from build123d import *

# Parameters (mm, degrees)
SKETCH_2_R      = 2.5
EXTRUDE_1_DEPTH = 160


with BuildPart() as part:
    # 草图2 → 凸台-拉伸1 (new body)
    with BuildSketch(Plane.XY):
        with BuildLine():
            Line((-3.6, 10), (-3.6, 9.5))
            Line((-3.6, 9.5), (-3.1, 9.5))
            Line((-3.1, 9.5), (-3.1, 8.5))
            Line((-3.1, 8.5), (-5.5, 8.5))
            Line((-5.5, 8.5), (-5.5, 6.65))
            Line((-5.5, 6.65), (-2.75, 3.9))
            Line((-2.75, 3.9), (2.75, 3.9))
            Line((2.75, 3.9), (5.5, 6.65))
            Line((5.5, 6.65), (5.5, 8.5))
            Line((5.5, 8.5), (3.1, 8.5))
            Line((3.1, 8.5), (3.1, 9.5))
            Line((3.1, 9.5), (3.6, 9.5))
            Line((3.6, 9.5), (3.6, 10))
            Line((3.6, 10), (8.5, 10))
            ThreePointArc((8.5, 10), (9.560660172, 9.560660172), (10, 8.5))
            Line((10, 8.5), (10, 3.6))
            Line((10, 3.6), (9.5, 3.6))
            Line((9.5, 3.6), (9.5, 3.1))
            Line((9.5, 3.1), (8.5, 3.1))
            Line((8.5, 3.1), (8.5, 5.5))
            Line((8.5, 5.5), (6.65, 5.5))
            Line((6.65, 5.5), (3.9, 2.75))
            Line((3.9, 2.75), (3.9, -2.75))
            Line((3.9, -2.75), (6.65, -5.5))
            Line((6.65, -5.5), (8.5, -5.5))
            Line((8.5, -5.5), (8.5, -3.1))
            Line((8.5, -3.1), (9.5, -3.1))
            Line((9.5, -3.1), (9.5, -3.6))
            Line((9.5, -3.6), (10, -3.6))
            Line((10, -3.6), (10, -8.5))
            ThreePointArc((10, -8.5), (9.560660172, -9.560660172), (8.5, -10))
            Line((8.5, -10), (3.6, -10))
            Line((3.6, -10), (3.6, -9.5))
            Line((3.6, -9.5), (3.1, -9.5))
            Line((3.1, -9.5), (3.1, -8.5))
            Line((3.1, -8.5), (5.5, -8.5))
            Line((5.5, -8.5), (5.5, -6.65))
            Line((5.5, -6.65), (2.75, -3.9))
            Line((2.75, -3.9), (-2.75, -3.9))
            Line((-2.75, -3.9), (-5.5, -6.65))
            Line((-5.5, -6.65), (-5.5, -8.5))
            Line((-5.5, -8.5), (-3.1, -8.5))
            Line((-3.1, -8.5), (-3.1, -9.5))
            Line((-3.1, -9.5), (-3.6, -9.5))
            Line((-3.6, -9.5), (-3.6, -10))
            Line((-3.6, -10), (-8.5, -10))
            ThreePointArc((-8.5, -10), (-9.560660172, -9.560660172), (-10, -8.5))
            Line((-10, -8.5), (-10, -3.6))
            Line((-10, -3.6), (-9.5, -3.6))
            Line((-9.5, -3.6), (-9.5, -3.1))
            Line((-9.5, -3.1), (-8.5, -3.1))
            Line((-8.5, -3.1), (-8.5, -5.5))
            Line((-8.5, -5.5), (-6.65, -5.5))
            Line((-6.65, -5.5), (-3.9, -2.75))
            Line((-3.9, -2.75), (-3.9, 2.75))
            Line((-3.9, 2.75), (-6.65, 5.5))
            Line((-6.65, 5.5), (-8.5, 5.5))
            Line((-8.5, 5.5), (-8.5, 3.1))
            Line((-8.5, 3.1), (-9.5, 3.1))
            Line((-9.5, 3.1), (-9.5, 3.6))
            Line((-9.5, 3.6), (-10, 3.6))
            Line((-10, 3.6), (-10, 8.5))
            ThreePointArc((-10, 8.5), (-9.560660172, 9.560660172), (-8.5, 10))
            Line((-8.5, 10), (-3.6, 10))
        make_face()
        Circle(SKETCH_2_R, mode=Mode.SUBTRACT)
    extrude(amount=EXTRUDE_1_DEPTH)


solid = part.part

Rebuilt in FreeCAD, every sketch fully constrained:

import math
import FreeCAD as App
import Part
import Sketcher

V = App.Vector

doc = App.newDocument("Part")
body = doc.addObject("PartDesign::Body", "Body")

sketch1 = body.newObject("Sketcher::SketchObject", "Sketch")
sketch1.AttachmentSupport = (doc.getObject("XY_Plane"), [""])
sketch1.MapMode = "FlatFace"
sketch1.addGeometry([
    Part.LineSegment(V(-3.6, 9.5, 0), V(-3.6, 10, 0)),
    Part.LineSegment(V(-3.6, 10, 0), V(-8.5, 10, 0)),
    Part.ArcOfCircle(Part.Circle(V(-8.5, 8.5, 0), V(0, 0, 1), 1.5), math.radians(90), math.radians(180)),
    Part.LineSegment(V(-10, 8.5, 0), V(-10, 3.6, 0)),
    Part.LineSegment(V(-10, 3.6, 0), V(-9.5, 3.6, 0)),
    Part.LineSegment(V(-9.5, 3.6, 0), V(-9.5, 3.1, 0)),
    Part.LineSegment(V(-9.5, 3.1, 0), V(-8.5, 3.1, 0)),
    Part.LineSegment(V(-8.5, 3.1, 0), V(-8.5, 5.5, 0)),
    Part.LineSegment(V(-8.5, 5.5, 0), V(-6.7, 5.5, 0)),
    Part.LineSegment(V(-6.7, 5.5, 0), V(-3.9, 2.8, 0)),
    Part.LineSegment(V(-3.9, 2.8, 0), V(-3.9, -2.8, 0)),
    Part.LineSegment(V(-3.9, -2.8, 0), V(-6.7, -5.5, 0)),
    Part.LineSegment(V(-6.7, -5.5, 0), V(-8.5, -5.5, 0)),
    Part.LineSegment(V(-8.5, -5.5, 0), V(-8.5, -3.1, 0)),
    Part.LineSegment(V(-8.5, -3.1, 0), V(-9.5, -3.1, 0)),
    Part.LineSegment(V(-9.5, -3.1, 0), V(-9.5, -3.6, 0)),
    Part.LineSegment(V(-9.5, -3.6, 0), V(-10, -3.6, 0)),
    Part.LineSegment(V(-10, -3.6, 0), V(-10, -8.5, 0)),
    Part.ArcOfCircle(Part.Circle(V(-8.5, -8.5, 0), V(0, 0, 1), 1.5), math.radians(180), math.radians(270)),
    Part.LineSegment(V(-8.5, -10, 0), V(-3.6, -10, 0)),
    Part.LineSegment(V(-3.6, -10, 0), V(-3.6, -9.5, 0)),
    Part.LineSegment(V(-3.6, -9.5, 0), V(-3.1, -9.5, 0)),
    Part.LineSegment(V(-3.1, -9.5, 0), V(-3.1, -8.5, 0)),
    Part.LineSegment(V(-3.1, -8.5, 0), V(-5.5, -8.5, 0)),
    Part.LineSegment(V(-5.5, -8.5, 0), V(-5.5, -6.7, 0)),
    Part.LineSegment(V(-5.5, -6.7, 0), V(-2.8, -3.9, 0)),
    Part.LineSegment(V(-2.8, -3.9, 0), V(2.8, -3.9, 0)),
    Part.LineSegment(V(2.8, -3.9, 0), V(5.5, -6.7, 0)),
    Part.LineSegment(V(5.5, -6.7, 0), V(5.5, -8.5, 0)),
    Part.LineSegment(V(5.5, -8.5, 0), V(3.1, -8.5, 0)),
    Part.LineSegment(V(3.1, -8.5, 0), V(3.1, -9.5, 0)),
    Part.LineSegment(V(3.1, -9.5, 0), V(3.6, -9.5, 0)),
    Part.LineSegment(V(3.6, -9.5, 0), V(3.6, -10, 0)),
    Part.LineSegment(V(3.6, -10, 0), V(8.5, -10, 0)),
    Part.ArcOfCircle(Part.Circle(V(8.5, -8.5, 0), V(0, 0, 1), 1.5), math.radians(-90), math.radians(0)),
    Part.LineSegment(V(10, -8.5, 0), V(10, -3.6, 0)),
    Part.LineSegment(V(10, -3.6, 0), V(9.5, -3.6, 0)),
    Part.LineSegment(V(9.5, -3.6, 0), V(9.5, -3.1, 0)),
    Part.LineSegment(V(9.5, -3.1, 0), V(8.5, -3.1, 0)),
    Part.LineSegment(V(8.5, -3.1, 0), V(8.5, -5.5, 0)),
    Part.LineSegment(V(8.5, -5.5, 0), V(6.7, -5.5, 0)),
    Part.LineSegment(V(6.7, -5.5, 0), V(3.9, -2.8, 0)),
    Part.LineSegment(V(3.9, -2.8, 0), V(3.9, 2.8, 0)),
    Part.LineSegment(V(3.9, 2.8, 0), V(6.7, 5.5, 0)),
    Part.LineSegment(V(6.7, 5.5, 0), V(8.5, 5.5, 0)),
    Part.LineSegment(V(8.5, 5.5, 0), V(8.5, 3.1, 0)),
    Part.LineSegment(V(8.5, 3.1, 0), V(9.5, 3.1, 0)),
    Part.LineSegment(V(9.5, 3.1, 0), V(9.5, 3.6, 0)),
    Part.LineSegment(V(9.5, 3.6, 0), V(10, 3.6, 0)),
    Part.LineSegment(V(10, 3.6, 0), V(10, 8.5, 0)),
    Part.ArcOfCircle(Part.Circle(V(8.5, 8.5, 0), V(0, 0, 1), 1.5), math.radians(0), math.radians(90)),
    Part.LineSegment(V(8.5, 10, 0), V(3.6, 10, 0)),
    Part.LineSegment(V(3.6, 10, 0), V(3.6, 9.5, 0)),
    Part.LineSegment(V(3.6, 9.5, 0), V(3.1, 9.5, 0)),
    Part.LineSegment(V(3.1, 9.5, 0), V(3.1, 8.5, 0)),
    Part.LineSegment(V(3.1, 8.5, 0), V(5.5, 8.5, 0)),
    Part.LineSegment(V(5.5, 8.5, 0), V(5.5, 6.7, 0)),
    Part.LineSegment(V(5.5, 6.7, 0), V(2.8, 3.9, 0)),
    Part.LineSegment(V(2.8, 3.9, 0), V(-2.8, 3.9, 0)),
    Part.LineSegment(V(-2.8, 3.9, 0), V(-5.5, 6.7, 0)),
    Part.LineSegment(V(-5.5, 6.7, 0), V(-5.5, 8.5, 0)),
    Part.LineSegment(V(-5.5, 8.5, 0), V(-3.1, 8.5, 0)),
    Part.LineSegment(V(-3.1, 8.5, 0), V(-3.1, 9.5, 0)),
    Part.LineSegment(V(-3.1, 9.5, 0), V(-3.6, 9.5, 0)),
    Part.Circle(V(0, 0, 0), V(0, 0, 1), 2.5),
], False)
sketch1.addConstraint([
    Sketcher.Constraint("Coincident", 0, 2, 1, 1),
    Sketcher.Constraint("Tangent", 1, 2, 2, 1),
    Sketcher.Constraint("Tangent", 2, 2, 3, 1),
    Sketcher.Constraint("Coincident", 3, 2, 4, 1),
    Sketcher.Constraint("Coincident", 4, 2, 5, 1),
    Sketcher.Constraint("Coincident", 5, 2, 6, 1),
    Sketcher.Constraint("Coincident", 6, 2, 7, 1),
    Sketcher.Constraint("Coincident", 7, 2, 8, 1),
    Sketcher.Constraint("Coincident", 8, 2, 9, 1),
    Sketcher.Constraint("Coincident", 9, 2, 10, 1),
    Sketcher.Constraint("Coincident", 10, 2, 11, 1),
    Sketcher.Constraint("Coincident", 11, 2, 12, 1),
    Sketcher.Constraint("Coincident", 12, 2, 13, 1),
    Sketcher.Constraint("Coincident", 13, 2, 14, 1),
    Sketcher.Constraint("Coincident", 14, 2, 15, 1),
    Sketcher.Constraint("Coincident", 15, 2, 16, 1),
    Sketcher.Constraint("Coincident", 16, 2, 17, 1),
    Sketcher.Constraint("Tangent", 17, 2, 18, 1),
    Sketcher.Constraint("Tangent", 18, 2, 19, 1),
    Sketcher.Constraint("Coincident", 19, 2, 20, 1),
    Sketcher.Constraint("Coincident", 20, 2, 21, 1),
    Sketcher.Constraint("Coincident", 21, 2, 22, 1),
    Sketcher.Constraint("Coincident", 22, 2, 23, 1),
    Sketcher.Constraint("Coincident", 23, 2, 24, 1),
    Sketcher.Constraint("Coincident", 24, 2, 25, 1),
    Sketcher.Constraint("Coincident", 25, 2, 26, 1),
    Sketcher.Constraint("Coincident", 26, 2, 27, 1),
    Sketcher.Constraint("Coincident", 27, 2, 28, 1),
    Sketcher.Constraint("Coincident", 28, 2, 29, 1),
    Sketcher.Constraint("Coincident", 29, 2, 30, 1),
    Sketcher.Constraint("Coincident", 30, 2, 31, 1),
    Sketcher.Constraint("Coincident", 31, 2, 32, 1),
    Sketcher.Constraint("Coincident", 32, 2, 33, 1),
    Sketcher.Constraint("Tangent", 33, 2, 34, 1),
    Sketcher.Constraint("Tangent", 34, 2, 35, 1),
    Sketcher.Constraint("Coincident", 35, 2, 36, 1),
    Sketcher.Constraint("Coincident", 36, 2, 37, 1),
    Sketcher.Constraint("Coincident", 37, 2, 38, 1),
    Sketcher.Constraint("Coincident", 38, 2, 39, 1),
    Sketcher.Constraint("Coincident", 39, 2, 40, 1),
    Sketcher.Constraint("Coincident", 40, 2, 41, 1),
    Sketcher.Constraint("Coincident", 41, 2, 42, 1),
    Sketcher.Constraint("Coincident", 42, 2, 43, 1),
    Sketcher.Constraint("Coincident", 43, 2, 44, 1),
    Sketcher.Constraint("Coincident", 44, 2, 45, 1),
    Sketcher.Constraint("Coincident", 45, 2, 46, 1),
    Sketcher.Constraint("Coincident", 46, 2, 47, 1),
    Sketcher.Constraint("Coincident", 47, 2, 48, 1),
    Sketcher.Constraint("Coincident", 48, 2, 49, 1),
    Sketcher.Constraint("Tangent", 49, 2, 50, 1),
    Sketcher.Constraint("Tangent", 50, 2, 51, 1),
    Sketcher.Constraint("Coincident", 51, 2, 52, 1),
    Sketcher.Constraint("Coincident", 52, 2, 53, 1),
    Sketcher.Constraint("Coincident", 53, 2, 54, 1),
    Sketcher.Constraint("Coincident", 54, 2, 55, 1),
    Sketcher.Constraint("Coincident", 55, 2, 56, 1),
    Sketcher.Constraint("Coincident", 56, 2, 57, 1),
    Sketcher.Constraint("Coincident", 57, 2, 58, 1),
    Sketcher.Constraint("Coincident", 58, 2, 59, 1),
    Sketcher.Constraint("Coincident", 59, 2, 60, 1),
    Sketcher.Constraint("Coincident", 60, 2, 61, 1),
    Sketcher.Constraint("Coincident", 61, 2, 62, 1),
    Sketcher.Constraint("Coincident", 62, 2, 63, 1),
    Sketcher.Constraint("Coincident", 63, 2, 0, 1),
    Sketcher.Constraint("Vertical", 0),
    Sketcher.Constraint("Horizontal", 1),
    Sketcher.Constraint("Vertical", 3),
    Sketcher.Constraint("Horizontal", 4),
    Sketcher.Constraint("Vertical", 5),
    Sketcher.Constraint("Horizontal", 6),
    Sketcher.Constraint("Vertical", 7),
    Sketcher.Constraint("Horizontal", 8),
    Sketcher.Constraint("Vertical", 10),
    Sketcher.Constraint("Horizontal", 12),
    Sketcher.Constraint("Vertical", 13),
    Sketcher.Constraint("Horizontal", 14),
    Sketcher.Constraint("Vertical", 15),
    Sketcher.Constraint("Horizontal", 16),
    Sketcher.Constraint("Vertical", 17),
    Sketcher.Constraint("Horizontal", 19),
    Sketcher.Constraint("Vertical", 20),
    Sketcher.Constraint("Horizontal", 21),
    Sketcher.Constraint("Vertical", 22),
    Sketcher.Constraint("Horizontal", 23),
    Sketcher.Constraint("Vertical", 24),
    Sketcher.Constraint("Horizontal", 26),
    Sketcher.Constraint("Vertical", 28),
    Sketcher.Constraint("Horizontal", 29),
    Sketcher.Constraint("Vertical", 30),
    Sketcher.Constraint("Horizontal", 31),
    Sketcher.Constraint("Vertical", 32),
    Sketcher.Constraint("Horizontal", 33),
    Sketcher.Constraint("Vertical", 35),
    Sketcher.Constraint("Horizontal", 36),
    Sketcher.Constraint("Vertical", 37),
    Sketcher.Constraint("Horizontal", 38),
    Sketcher.Constraint("Vertical", 39),
    Sketcher.Constraint("Horizontal", 40),
    Sketcher.Constraint("Vertical", 42),
    Sketcher.Constraint("Horizontal", 44),
    Sketcher.Constraint("Vertical", 45),
    Sketcher.Constraint("Horizontal", 46),
    Sketcher.Constraint("Vertical", 47),
    Sketcher.Constraint("Horizontal", 48),
    Sketcher.Constraint("Vertical", 49),
    Sketcher.Constraint("Horizontal", 51),
    Sketcher.Constraint("Vertical", 52),
    Sketcher.Constraint("Horizontal", 53),
    Sketcher.Constraint("Vertical", 54),
    Sketcher.Constraint("Horizontal", 55),
    Sketcher.Constraint("Vertical", 56),
    Sketcher.Constraint("Horizontal", 58),
    Sketcher.Constraint("Vertical", 60),
    Sketcher.Constraint("Horizontal", 61),
    Sketcher.Constraint("Vertical", 62),
    Sketcher.Constraint("Horizontal", 63),
    Sketcher.Constraint("Coincident", 64, 3, -1, 1),
    Sketcher.Constraint("Equal", 2, 18),
    Sketcher.Constraint("Equal", 18, 34),
    Sketcher.Constraint("Equal", 34, 50),
    Sketcher.Constraint("Symmetric", 2, 3, 34, 3, -1, 1),
    Sketcher.Constraint("Symmetric", 18, 3, 50, 3, -1, 1),
    Sketcher.Constraint("Symmetric", 4, 2, 36, 2, -1, 1),
    Sketcher.Constraint("Symmetric", 6, 2, 38, 2, -1, 1),
    Sketcher.Constraint("Symmetric", 8, 2, 40, 2, -1, 1),
    Sketcher.Constraint("Symmetric", 9, 2, 41, 2, -1, 1),
    Sketcher.Constraint("Symmetric", 11, 2, 43, 2, -1, 1),
    Sketcher.Constraint("Symmetric", 13, 2, 45, 2, -1, 1),
    Sketcher.Constraint("Symmetric", 15, 2, 47, 2, -1, 1),
    Sketcher.Constraint("Symmetric", 20, 2, 52, 2, -1, 1),
    Sketcher.Constraint("Symmetric", 22, 2, 54, 2, -1, 1),
    Sketcher.Constraint("Symmetric", 24, 2, 56, 2, -1, 1),
    Sketcher.Constraint("Symmetric", 25, 2, 57, 2, -1, 1),
    Sketcher.Constraint("Symmetric", 27, 2, 59, 2, -1, 1),
    Sketcher.Constraint("Symmetric", 29, 2, 61, 2, -1, 1),
    Sketcher.Constraint("Symmetric", 31, 2, 63, 2, -1, 1),
    Sketcher.Constraint("Symmetric", 18, 3, 34, 3, -2),
    Sketcher.Constraint("Symmetric", 24, 2, 27, 2, -2),
    Sketcher.Constraint("Symmetric", 22, 2, 29, 2, -2),
    Sketcher.Constraint("Symmetric", 20, 2, 31, 2, -2),
    Sketcher.Constraint("Symmetric", 15, 2, 36, 2, -2),
    Sketcher.Constraint("Symmetric", 13, 2, 38, 2, -2),
    Sketcher.Constraint("Symmetric", 11, 2, 40, 2, -2),
    Sketcher.Constraint("Perpendicular", 9, 11),
    Sketcher.Constraint("Parallel", 11, 25),
    Sketcher.Constraint("Perpendicular", 25, 27),
    Sketcher.Constraint("Perpendicular", 41, 43),
    Sketcher.Constraint("Perpendicular", 57, 59),
    Sketcher.Constraint("Horizontal", 17, 2, 22, 2),
    Sketcher.Constraint("Horizontal", 10, 2, 41, 2),
    Sketcher.Constraint("Vertical", 1, 2, 6, 2),
    Sketcher.Constraint("Equal", 16, 21),
    Sketcher.Constraint("Equal", 63, 0),
    Sketcher.Constraint("Equal", 51, 3),
    Sketcher.Constraint("Equal", 0, 5),
    Sketcher.Constraint("Equal", 61, 7),
    Sketcher.Constraint("Equal", 58, 10),
    Sketcher.Constraint("Equal", 44, 24),
    Sketcher.Constraint("Equal", 11, 25),
    Sketcher.Constraint("Diameter", 64, 5.0),
    Sketcher.Constraint("Radius", 2, 1.5),
    Sketcher.Constraint("DistanceX", 6, 1, 6, 2, 1.0),
    Sketcher.Constraint("DistanceX", 1, 2, 1, 1, 4.9),
    Sketcher.Constraint("DistanceX", 23, 2, 23, 1, 2.4),
    Sketcher.Constraint("DistanceX", 26, 1, 26, 2, 5.5),
    Sketcher.Constraint("DistanceY", -1, 1, 0, 2, 10.0),
    Sketcher.Constraint("DistanceX", 8, 1, 8, 2, 1.85),
])
pad1 = body.newObject("PartDesign::Pad", "Pad")
pad1.Profile = sketch1
pad1.Length = 160

doc.recompute()
